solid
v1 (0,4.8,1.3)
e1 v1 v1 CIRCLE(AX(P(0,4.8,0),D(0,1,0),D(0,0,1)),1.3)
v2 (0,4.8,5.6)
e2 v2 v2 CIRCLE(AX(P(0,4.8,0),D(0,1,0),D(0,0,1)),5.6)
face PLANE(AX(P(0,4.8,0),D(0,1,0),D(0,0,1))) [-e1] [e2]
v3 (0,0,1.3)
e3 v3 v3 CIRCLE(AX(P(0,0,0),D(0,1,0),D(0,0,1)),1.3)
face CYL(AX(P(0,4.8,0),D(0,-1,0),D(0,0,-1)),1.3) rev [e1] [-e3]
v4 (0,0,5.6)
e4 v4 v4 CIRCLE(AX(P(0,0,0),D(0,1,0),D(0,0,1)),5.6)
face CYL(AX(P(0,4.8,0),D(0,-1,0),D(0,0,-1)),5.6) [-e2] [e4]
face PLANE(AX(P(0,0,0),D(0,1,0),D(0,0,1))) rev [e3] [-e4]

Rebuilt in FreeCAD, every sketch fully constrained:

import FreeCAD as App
import Part
import Sketcher

doc = App.newDocument("Part")
body = doc.addObject("PartDesign::Body", "Body")

# Sketch on XZ plane
sketch1 = body.newObject("Sketcher::SketchObject", "Sketch")
sketch1.AttachmentSupport = (doc.getObject("XZ_Plane"), [""])
sketch1.MapMode = "FlatFace"
sketch1.addGeometry([
    Part.Circle(App.Vector(0, 0, 0), App.Vector(0, 0, 1), 5.6),
    Part.Circle(App.Vector(0, 0, 0), App.Vector(0, 0, 1), 1.3),
], False)
sketch1.addConstraint([
    Sketcher.Constraint("Coincident", 0, 3, -1, 1),
    Sketcher.Constraint("Coincident", 1, 3, -1, 1),
    Sketcher.Constraint("Diameter", 0, 11.2),
    Sketcher.Constraint("Diameter", 1, 2.6),
])
pad1 = body.newObject("PartDesign::Pad", "Pad")
pad1.Profile = sketch1
pad1.Length = 4.8
pad1.Reversed = True

doc.recompute()
